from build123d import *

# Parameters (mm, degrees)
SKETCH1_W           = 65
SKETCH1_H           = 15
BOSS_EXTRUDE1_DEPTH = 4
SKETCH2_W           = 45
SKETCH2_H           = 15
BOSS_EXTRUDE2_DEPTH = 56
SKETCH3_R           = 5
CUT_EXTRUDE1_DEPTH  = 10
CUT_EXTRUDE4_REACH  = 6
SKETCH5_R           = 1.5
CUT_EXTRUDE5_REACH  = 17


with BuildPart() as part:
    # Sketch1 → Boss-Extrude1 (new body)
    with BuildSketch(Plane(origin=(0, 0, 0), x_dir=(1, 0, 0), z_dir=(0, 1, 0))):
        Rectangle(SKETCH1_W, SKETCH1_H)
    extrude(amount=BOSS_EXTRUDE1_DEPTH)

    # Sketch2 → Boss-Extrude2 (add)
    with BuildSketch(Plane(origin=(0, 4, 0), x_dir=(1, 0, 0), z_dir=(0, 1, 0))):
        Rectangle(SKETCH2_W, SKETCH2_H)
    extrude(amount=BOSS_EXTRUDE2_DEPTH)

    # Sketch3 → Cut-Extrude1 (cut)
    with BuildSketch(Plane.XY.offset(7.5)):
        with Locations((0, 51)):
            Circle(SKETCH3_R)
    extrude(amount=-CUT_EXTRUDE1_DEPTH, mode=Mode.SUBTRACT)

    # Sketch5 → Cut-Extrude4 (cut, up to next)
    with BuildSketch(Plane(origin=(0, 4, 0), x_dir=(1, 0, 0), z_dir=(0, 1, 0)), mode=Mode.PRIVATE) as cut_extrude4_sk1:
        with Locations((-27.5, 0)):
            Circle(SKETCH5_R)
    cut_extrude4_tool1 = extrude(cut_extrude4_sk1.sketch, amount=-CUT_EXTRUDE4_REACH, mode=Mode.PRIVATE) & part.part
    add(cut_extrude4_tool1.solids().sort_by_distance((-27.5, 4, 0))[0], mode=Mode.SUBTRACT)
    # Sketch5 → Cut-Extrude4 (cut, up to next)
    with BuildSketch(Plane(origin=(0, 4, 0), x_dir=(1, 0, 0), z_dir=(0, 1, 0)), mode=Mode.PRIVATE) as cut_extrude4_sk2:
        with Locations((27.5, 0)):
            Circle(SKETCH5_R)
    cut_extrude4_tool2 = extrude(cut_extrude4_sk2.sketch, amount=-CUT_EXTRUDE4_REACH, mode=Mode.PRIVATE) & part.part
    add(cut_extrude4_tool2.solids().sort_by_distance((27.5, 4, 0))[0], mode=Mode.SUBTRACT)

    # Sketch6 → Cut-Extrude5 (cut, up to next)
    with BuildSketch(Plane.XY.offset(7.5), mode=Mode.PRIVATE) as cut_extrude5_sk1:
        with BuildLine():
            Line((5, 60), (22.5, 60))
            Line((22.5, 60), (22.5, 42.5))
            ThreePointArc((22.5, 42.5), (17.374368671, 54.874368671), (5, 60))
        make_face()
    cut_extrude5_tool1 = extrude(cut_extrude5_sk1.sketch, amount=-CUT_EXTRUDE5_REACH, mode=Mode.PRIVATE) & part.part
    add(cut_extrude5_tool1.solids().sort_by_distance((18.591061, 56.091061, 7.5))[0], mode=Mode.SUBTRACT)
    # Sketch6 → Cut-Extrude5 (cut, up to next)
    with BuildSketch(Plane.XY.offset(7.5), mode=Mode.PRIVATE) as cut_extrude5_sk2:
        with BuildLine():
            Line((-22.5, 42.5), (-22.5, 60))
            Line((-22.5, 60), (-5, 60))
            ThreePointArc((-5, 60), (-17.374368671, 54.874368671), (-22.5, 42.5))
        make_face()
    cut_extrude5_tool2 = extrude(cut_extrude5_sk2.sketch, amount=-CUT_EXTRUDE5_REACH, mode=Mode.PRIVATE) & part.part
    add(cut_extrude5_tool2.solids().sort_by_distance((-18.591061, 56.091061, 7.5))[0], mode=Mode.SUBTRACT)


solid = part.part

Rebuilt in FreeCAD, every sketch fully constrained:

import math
import FreeCAD as App
import Part
import Sketcher


def add_polygon(sketch, points):
    """Adds a closed chain of lines whose ends are joined by coincident constraints."""
    first, n = sketch.GeometryCount, len(points)
    for a, b in zip(points, points[1:] + points[:1]):
        sketch.addGeometry(Part.LineSegment(App.Vector(*a, 0), App.Vector(*b, 0)), False)
    for i in range(n):
        sketch.addConstraint(Sketcher.Constraint("Coincident", first + i, 2, first + (i + 1) % n, 1))

doc = App.newDocument("Part")
body = doc.addObject("PartDesign::Body", "Body")

# Sketch on XZ plane
sketch1 = body.newObject("Sketcher::SketchObject", "Sketch")
sketch1.AttachmentSupport = (doc.getObject("XZ_Plane"), [""])
sketch1.MapMode = "FlatFace"
add_polygon(sketch1, [(-32.5, -7.5), (-32.5, 7.5), (32.5, 7.5), (32.5, -7.5)])  # lines 0-3
sketch1.addConstraint([
    Sketcher.Constraint("Vertical", 0),
    Sketcher.Constraint("Horizontal", 1),
    Sketcher.Constraint("Vertical", 2),
    Sketcher.Constraint("Horizontal", 3),
    Sketcher.Constraint("Symmetric", 0, 2, 2, 2, -1, 1),
    Sketcher.Constraint("DistanceX", 1, 1, 1, 2, 65.0),
    Sketcher.Constraint("DistanceY", 0, 1, 0, 2, 15.0),
])
pad1 = body.newObject("PartDesign::Pad", "Pad")
pad1.Profile = sketch1
pad1.Length = 4
pad1.Reversed = True

# Sketch on XZ plane
sketch2 = body.newObject("Sketcher::SketchObject", "Sketch001")
sketch2.AttachmentSupport = (doc.getObject("XZ_Plane"), [""])
sketch2.MapMode = "FlatFace"
sketch2.AttachmentOffset = App.Placement(App.Vector(0, 0, -4), App.Rotation())
add_polygon(sketch2, [(-22.5, -7.5), (-22.5, 7.5), (22.5, 7.5), (22.5, -7.5)])  # lines 0-3
sketch2.addConstraint([
    Sketcher.Constraint("Vertical", 0),
    Sketcher.Constraint("Horizontal", 1),
    Sketcher.Constraint("Vertical", 2),
    Sketcher.Constraint("Horizontal", 3),
    Sketcher.Constraint("Symmetric", 0, 2, 2, 2, -1, 1),
    Sketcher.Constraint("DistanceX", 1, 1, 1, 2, 45.0),
    Sketcher.Constraint("DistanceY", 0, 1, 0, 2, 15.0),
])
pad2 = body.newObject("PartDesign::Pad", "Pad001")
pad2.Profile = sketch2
pad2.Length = 56
pad2.Reversed = True

# Sketch on XY plane
sketch3 = body.newObject("Sketcher::SketchObject", "Sketch002")
sketch3.AttachmentSupport = (doc.getObject("XY_Plane"), [""])
sketch3.MapMode = "FlatFace"
sketch3.AttachmentOffset = App.Placement(App.Vector(0, 0, 7.5), App.Rotation())
sketch3.addGeometry(Part.Circle(App.Vector(0, 51, 0), App.Vector(0, 0, 1), 5), False)
sketch3.addConstraint([
    Sketcher.Constraint("PointOnObject", 0, 3, -2),
    Sketcher.Constraint("Diameter", 0, 10.0),
    Sketcher.Constraint("DistanceY", -1, 1, 0, 3, 51.0),
])
pocket1 = body.newObject("PartDesign::Pocket", "Pocket")
pocket1.Profile = sketch3
pocket1.Length = 10

# Sketch on XZ plane
sketch4 = body.newObject("Sketcher::SketchObject", "Sketch003")
sketch4.AttachmentSupport = (doc.getObject("XZ_Plane"), [""])
sketch4.MapMode = "FlatFace"
sketch4.AttachmentOffset = App.Placement(App.Vector(0, 0, -4), App.Rotation())
sketch4.addGeometry(Part.Circle(App.Vector(-27.5, 0, 0), App.Vector(0, 0, 1), 1.5), False)
sketch4.addConstraint([
    Sketcher.Constraint("PointOnObject", 0, 3, -1),
    Sketcher.Constraint("Diameter", 0, 3.0),
    Sketcher.Constraint("DistanceX", 0, 3, -1, 1, 27.5),
])
pocket2 = body.newObject("PartDesign::Pocket", "Pocket001")
pocket2.Profile = sketch4
pocket2.Type = "UpToFirst"
pocket2.Reversed = True

# Sketch on XZ plane
sketch5 = body.newObject("Sketcher::SketchObject", "Sketch004")
sketch5.AttachmentSupport = (doc.getObject("XZ_Plane"), [""])
sketch5.MapMode = "FlatFace"
sketch5.AttachmentOffset = App.Placement(App.Vector(0, 0, -4), App.Rotation())
sketch5.addGeometry(Part.Circle(App.Vector(27.5, 0, 0), App.Vector(0, 0, 1), 1.5), False)
sketch5.addConstraint([
    Sketcher.Constraint("PointOnObject", 0, 3, -1),
    Sketcher.Constraint("Diameter", 0, 3.0),
    Sketcher.Constraint("DistanceX", -1, 1, 0, 3, 27.5),
])
pocket3 = body.newObject("PartDesign::Pocket", "Pocket002")
pocket3.Profile = sketch5
pocket3.Type = "UpToFirst"
pocket3.Reversed = True

# Sketch on XY plane
sketch6 = body.newObject("Sketcher::SketchObject", "Sketch005")
sketch6.AttachmentSupport = (doc.getObject("XY_Plane"), [""])
sketch6.MapMode = "FlatFace"
sketch6.AttachmentOffset = App.Placement(App.Vector(0, 0, 7.5), App.Rotation())
sketch6.addGeometry([
    Part.LineSegment(App.Vector(22.5, 60, 0), App.Vector(5, 60, 0)),
    Part.ArcOfCircle(Part.Circle(App.Vector(5, 42.5, 0), App.Vector(0, 0, 1), 17.5), math.radians(0), math.radians(90)),
    Part.LineSegment(App.Vector(22.5, 42.5, 0), App.Vector(22.5, 60, 0)),
], False)
sketch6.addConstraint([
    Sketcher.Constraint("Tangent", 0, 2, 1, 2),
    Sketcher.Constraint("Tangent", 1, 1, 2, 1),
    Sketcher.Constraint("Coincident", 2, 2, 0, 1),
    Sketcher.Constraint("Horizontal", 0),
    Sketcher.Constraint("Vertical", 2),
    Sketcher.Constraint("Radius", 1, 17.5),
    Sketcher.Constraint("DistanceX", -1, 1, 1, 3, 5.0),
    Sketcher.Constraint("DistanceY", -1, 1, 0, 2, 60.0),
])
pocket4 = body.newObject("PartDesign::Pocket", "Pocket003")
pocket4.Profile = sketch6
pocket4.Type = "UpToFirst"

# Sketch on XY plane
sketch7 = body.newObject("Sketcher::SketchObject", "Sketch006")
sketch7.AttachmentSupport = (doc.getObject("XY_Plane"), [""])
sketch7.MapMode = "FlatFace"
sketch7.AttachmentOffset = App.Placement(App.Vector(0, 0, 7.5), App.Rotation())
sketch7.addGeometry([
    Part.LineSegment(App.Vector(-22.5, 60, 0), App.Vector(-22.5, 42.5, 0)),
    Part.ArcOfCircle(Part.Circle(App.Vector(-5, 42.5, 0), App.Vector(0, 0, 1), 17.5), math.radians(90), math.radians(180)),
    Part.LineSegment(App.Vector(-5, 60, 0), App.Vector(-22.5, 60, 0)),
], False)
sketch7.addConstraint([
    Sketcher.Constraint("Tangent", 0, 2, 1, 2),
    Sketcher.Constraint("Tangent", 1, 1, 2, 1),
    Sketcher.Constraint("Coincident", 2, 2, 0, 1),
    Sketcher.Constraint("Vertical", 0),
    Sketcher.Constraint("Horizontal", 2),
    Sketcher.Constraint("Radius", 1, 17.5),
    Sketcher.Constraint("DistanceX", 1, 3, -1, 1, 5.0),
    Sketcher.Constraint("DistanceY", -1, 1, 1, 1, 60.0),
])
pocket5 = body.newObject("PartDesign::Pocket", "Pocket004")
pocket5.Profile = sketch7
pocket5.Type = "UpToFirst"

doc.recompute()
